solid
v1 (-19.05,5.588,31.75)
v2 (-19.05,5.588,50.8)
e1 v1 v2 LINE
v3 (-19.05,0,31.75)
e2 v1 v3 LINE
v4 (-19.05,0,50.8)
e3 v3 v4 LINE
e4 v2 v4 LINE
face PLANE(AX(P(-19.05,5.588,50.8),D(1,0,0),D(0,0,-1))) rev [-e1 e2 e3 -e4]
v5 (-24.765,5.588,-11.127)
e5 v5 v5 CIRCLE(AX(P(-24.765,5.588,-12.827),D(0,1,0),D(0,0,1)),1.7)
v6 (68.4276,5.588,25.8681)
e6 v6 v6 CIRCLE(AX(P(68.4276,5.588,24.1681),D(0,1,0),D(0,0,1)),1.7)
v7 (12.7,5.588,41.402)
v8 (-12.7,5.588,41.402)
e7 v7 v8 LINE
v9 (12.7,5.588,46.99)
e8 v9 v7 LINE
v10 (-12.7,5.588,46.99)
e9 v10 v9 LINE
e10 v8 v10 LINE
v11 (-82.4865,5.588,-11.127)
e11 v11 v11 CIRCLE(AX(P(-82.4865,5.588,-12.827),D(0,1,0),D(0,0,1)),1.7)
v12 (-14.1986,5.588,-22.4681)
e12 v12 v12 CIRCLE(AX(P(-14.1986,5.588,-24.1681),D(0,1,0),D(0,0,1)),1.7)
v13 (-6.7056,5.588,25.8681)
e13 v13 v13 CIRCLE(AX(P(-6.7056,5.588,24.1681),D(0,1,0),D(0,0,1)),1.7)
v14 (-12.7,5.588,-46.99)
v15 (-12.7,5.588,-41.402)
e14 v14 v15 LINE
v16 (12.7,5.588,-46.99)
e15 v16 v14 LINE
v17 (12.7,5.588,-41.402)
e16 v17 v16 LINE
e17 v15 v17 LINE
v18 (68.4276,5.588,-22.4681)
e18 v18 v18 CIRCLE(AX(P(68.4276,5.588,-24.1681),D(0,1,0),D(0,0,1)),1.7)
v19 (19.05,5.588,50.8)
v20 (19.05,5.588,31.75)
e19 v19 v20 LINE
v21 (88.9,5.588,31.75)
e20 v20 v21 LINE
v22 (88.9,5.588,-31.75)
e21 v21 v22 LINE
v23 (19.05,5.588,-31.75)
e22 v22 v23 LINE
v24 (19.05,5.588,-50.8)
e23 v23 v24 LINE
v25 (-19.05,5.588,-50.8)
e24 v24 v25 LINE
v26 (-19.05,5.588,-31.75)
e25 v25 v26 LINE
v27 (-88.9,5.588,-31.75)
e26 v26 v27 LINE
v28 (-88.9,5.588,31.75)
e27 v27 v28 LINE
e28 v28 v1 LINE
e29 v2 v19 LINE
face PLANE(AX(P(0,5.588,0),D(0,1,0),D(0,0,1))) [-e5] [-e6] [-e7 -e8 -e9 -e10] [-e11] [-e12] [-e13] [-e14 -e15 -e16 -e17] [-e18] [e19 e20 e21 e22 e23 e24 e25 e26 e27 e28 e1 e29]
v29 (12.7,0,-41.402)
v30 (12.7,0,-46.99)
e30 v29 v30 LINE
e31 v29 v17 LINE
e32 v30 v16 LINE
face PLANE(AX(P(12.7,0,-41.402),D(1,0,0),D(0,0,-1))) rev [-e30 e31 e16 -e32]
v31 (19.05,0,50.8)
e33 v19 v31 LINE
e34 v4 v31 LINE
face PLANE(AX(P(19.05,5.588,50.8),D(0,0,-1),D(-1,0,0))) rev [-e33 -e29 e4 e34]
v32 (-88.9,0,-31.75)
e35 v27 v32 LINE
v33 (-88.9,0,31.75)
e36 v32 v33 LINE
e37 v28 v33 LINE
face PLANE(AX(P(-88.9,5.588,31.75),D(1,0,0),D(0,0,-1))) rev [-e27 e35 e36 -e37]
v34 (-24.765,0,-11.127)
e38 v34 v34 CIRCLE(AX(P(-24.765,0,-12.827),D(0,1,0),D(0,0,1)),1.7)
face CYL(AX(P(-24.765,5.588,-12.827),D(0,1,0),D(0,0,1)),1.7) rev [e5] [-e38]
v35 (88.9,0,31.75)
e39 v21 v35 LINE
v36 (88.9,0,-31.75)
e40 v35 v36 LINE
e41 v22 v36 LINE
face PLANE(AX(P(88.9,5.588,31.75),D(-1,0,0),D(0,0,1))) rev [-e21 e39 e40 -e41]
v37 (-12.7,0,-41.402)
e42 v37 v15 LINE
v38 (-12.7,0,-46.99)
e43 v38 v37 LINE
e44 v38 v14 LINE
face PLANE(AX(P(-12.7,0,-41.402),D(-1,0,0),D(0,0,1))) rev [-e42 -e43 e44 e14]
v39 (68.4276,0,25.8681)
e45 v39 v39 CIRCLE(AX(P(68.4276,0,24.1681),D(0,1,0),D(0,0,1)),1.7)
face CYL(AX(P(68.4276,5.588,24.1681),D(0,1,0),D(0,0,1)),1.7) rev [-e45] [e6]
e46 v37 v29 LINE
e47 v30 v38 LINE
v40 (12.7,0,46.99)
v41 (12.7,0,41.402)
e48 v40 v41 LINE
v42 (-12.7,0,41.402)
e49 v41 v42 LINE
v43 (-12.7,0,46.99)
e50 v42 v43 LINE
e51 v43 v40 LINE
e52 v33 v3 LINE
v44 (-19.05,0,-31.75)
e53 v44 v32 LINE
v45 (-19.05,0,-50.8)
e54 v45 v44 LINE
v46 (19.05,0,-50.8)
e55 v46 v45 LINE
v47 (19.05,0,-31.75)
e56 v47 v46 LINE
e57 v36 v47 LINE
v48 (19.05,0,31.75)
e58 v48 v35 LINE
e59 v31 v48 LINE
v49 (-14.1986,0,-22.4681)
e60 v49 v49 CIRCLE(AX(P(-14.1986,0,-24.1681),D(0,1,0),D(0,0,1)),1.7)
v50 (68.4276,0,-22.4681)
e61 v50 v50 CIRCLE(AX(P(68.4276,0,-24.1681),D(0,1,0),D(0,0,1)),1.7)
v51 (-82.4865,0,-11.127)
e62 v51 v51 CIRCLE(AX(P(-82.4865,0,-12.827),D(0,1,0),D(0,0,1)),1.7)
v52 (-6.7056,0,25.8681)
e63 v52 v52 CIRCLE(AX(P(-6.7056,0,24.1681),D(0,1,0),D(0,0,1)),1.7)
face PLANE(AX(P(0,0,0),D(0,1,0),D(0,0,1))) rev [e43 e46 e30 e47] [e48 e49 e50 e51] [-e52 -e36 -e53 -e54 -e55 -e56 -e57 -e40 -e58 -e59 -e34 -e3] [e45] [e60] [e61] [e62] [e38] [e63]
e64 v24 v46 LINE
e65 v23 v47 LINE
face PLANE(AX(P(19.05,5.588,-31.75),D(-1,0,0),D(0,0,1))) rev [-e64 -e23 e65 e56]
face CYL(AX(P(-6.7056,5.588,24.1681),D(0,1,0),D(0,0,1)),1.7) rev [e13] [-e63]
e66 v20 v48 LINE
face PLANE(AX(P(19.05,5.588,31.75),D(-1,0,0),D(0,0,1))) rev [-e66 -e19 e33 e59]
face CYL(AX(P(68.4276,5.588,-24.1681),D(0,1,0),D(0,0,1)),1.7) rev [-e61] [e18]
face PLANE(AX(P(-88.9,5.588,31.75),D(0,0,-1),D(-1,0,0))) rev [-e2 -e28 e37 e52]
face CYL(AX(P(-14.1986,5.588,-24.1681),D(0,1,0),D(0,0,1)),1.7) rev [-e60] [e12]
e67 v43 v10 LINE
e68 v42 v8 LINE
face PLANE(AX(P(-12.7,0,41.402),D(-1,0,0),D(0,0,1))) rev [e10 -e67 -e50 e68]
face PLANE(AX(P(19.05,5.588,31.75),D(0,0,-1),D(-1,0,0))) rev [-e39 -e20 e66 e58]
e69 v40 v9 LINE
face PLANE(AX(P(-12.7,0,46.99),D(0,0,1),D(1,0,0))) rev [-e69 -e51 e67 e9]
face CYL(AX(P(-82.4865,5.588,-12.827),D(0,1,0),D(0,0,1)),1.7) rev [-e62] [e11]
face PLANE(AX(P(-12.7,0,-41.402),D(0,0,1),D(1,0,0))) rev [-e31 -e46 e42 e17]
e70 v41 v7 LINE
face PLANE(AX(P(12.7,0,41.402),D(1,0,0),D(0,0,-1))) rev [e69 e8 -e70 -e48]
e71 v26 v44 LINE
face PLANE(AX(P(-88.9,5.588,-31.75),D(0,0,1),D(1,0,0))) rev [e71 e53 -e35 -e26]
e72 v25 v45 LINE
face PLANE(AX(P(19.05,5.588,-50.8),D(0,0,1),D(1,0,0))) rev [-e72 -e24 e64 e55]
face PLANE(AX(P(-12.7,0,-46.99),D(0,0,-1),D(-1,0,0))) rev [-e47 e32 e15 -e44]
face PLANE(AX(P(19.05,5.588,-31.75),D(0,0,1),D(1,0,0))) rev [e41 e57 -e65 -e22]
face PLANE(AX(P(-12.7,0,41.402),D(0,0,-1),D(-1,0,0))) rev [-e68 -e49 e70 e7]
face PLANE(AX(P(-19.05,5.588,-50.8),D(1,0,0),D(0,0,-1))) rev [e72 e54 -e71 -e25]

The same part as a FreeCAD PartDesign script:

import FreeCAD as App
import Part
import Sketcher
from FreeCAD import Vector
Q = App.Units.Quantity

doc = App.newDocument("Part")
params = doc.addObject("Spreadsheet::Sheet", "Params")
for row, (alias, value) in enumerate([
    ("sketch1_width", "1.5 in"),
    ("sketch1_height", "2.5 in"),
    ("sketch1_width2", "2.75 in"),
    ("pad1_length", "0.22 in"),
    ("sketch2_width", "1 in"),
    ("sketch2_height", "0.22 in"),
    ("hole_diameter", "3.4 mm"),
    ("hole2_diameter", "3.4 mm"),
], start=1):
    params.set(f"A{row}", alias)
    params.set(f"B{row}", "=" + value)
    params.setAlias(f"B{row}", alias)

body = doc.addObject("PartDesign::Body", "Body")

# Sketch on XZ plane
sketch1 = body.newObject("Sketcher::SketchObject", "Sketch")
sketch1.AttachmentSupport = (doc.getObject("XZ_Plane"), [""])
sketch1.MapMode = "FlatFace"
sketch1.addGeometry([
    Part.LineSegment(Vector(19, -32, 0), Vector(19, -51, 0)),  # 0
    Part.LineSegment(Vector(19, -51, 0), Vector(-19, -51, 0)),  # 1
    Part.LineSegment(Vector(-19, -51, 0), Vector(-19, -32, 0)),  # 2
    Part.LineSegment(Vector(-19, -32, 0), Vector(-89, -32, 0)),  # 3
    Part.LineSegment(Vector(-89, -32, 0), Vector(-89, 32, 0)),  # 4
    Part.LineSegment(Vector(-89, 32, 0), Vector(-19, 32, 0)),  # 5
    Part.LineSegment(Vector(-19, 32, 0), Vector(-19, 51, 0)),  # 6
    Part.LineSegment(Vector(-19, 51, 0), Vector(19, 51, 0)),  # 7
    Part.LineSegment(Vector(19, 51, 0), Vector(19, 32, 0)),  # 8
    Part.LineSegment(Vector(19, 32, 0), Vector(89, 32, 0)),  # 9
    Part.LineSegment(Vector(89, 32, 0), Vector(89, -32, 0)),  # 10
    Part.LineSegment(Vector(89, -32, 0), Vector(19, -32, 0)),  # 11
], False)
sketch1.addConstraint([
    Sketcher.Constraint("Coincident", 0, 2, 1, 1),
    Sketcher.Constraint("Coincident", 1, 2, 2, 1),
    Sketcher.Constraint("Coincident", 2, 2, 3, 1),
    Sketcher.Constraint("Coincident", 3, 2, 4, 1),
    Sketcher.Constraint("Coincident", 4, 2, 5, 1),
    Sketcher.Constraint("Coincident", 5, 2, 6, 1),
    Sketcher.Constraint("Coincident", 6, 2, 7, 1),
    Sketcher.Constraint("Coincident", 7, 2, 8, 1),
    Sketcher.Constraint("Coincident", 8, 2, 9, 1),
    Sketcher.Constraint("Coincident", 9, 2, 10, 1),
    Sketcher.Constraint("Coincident", 10, 2, 11, 1),
    Sketcher.Constraint("Coincident", 11, 2, 0, 1),
    Sketcher.Constraint("Vertical", 0),
    Sketcher.Constraint("Horizontal", 1),
    Sketcher.Constraint("Vertical", 2),
    Sketcher.Constraint("Horizontal", 3),
    Sketcher.Constraint("Vertical", 4),
    Sketcher.Constraint("Horizontal", 5),
    Sketcher.Constraint("Vertical", 6),
    Sketcher.Constraint("Horizontal", 7),
    Sketcher.Constraint("Vertical", 8),
    Sketcher.Constraint("Horizontal", 9),
    Sketcher.Constraint("Vertical", 10),
    Sketcher.Constraint("Horizontal", 11),
    Sketcher.Constraint("Symmetric", 0, 2, 6, 2, -1, 1),
    Sketcher.Constraint("Symmetric", 2, 2, 8, 2, -1, 1),
    Sketcher.Constraint("Symmetric", 4, 2, 10, 2, -1, 1),
    Sketcher.Constraint("Symmetric", 5, 2, 8, 2, -2),
    Sketcher.Constraint("DistanceX", 1, 2, 1, 1, Q("1.5 in")),
    Sketcher.Constraint("DistanceY", 4, 1, 4, 2, Q("2.5 in")),
    Sketcher.Constraint("DistanceY", 0, 2, -1, 1, Q("2 in")),
    Sketcher.Constraint("DistanceX", 3, 2, 3, 1, Q("2.75 in")),
])
sketch1.setExpression("Constraints[28]", "Params.sketch1_width")
sketch1.setExpression("Constraints[29]", "Params.sketch1_height")
sketch1.setExpression("Constraints[31]", "Params.sketch1_width2")
pad1 = body.newObject("PartDesign::Pad", "Pad")
pad1.Profile = sketch1
pad1.setExpression("Length", "Params.pad1_length")
pad1.Reversed = True

# Sketch on XZ plane
sketch2 = body.newObject("Sketcher::SketchObject", "Sketch001")
sketch2.AttachmentSupport = (doc.getObject("XZ_Plane"), [""])
sketch2.MapMode = "FlatFace"
sketch2.AttachmentOffset = App.Placement(Vector(0, 0, -0.22 * 25.4), App.Rotation())
sketch2.addGeometry([
    Part.LineSegment(Vector(-13, -47, 0), Vector(-13, -41, 0)),  # 0
    Part.LineSegment(Vector(-13, -41, 0), Vector(13, -41, 0)),  # 1
    Part.LineSegment(Vector(13, -41, 0), Vector(13, -47, 0)),  # 2
    Part.LineSegment(Vector(13, -47, 0), Vector(-13, -47, 0)),  # 3
    Part.LineSegment(Vector(-13, 41, 0), Vector(-13, 47, 0)),  # 4
    Part.LineSegment(Vector(-13, 47, 0), Vector(13, 47, 0)),  # 5
    Part.LineSegment(Vector(13, 47, 0), Vector(13, 41, 0)),  # 6
    Part.LineSegment(Vector(13, 41, 0), Vector(-13, 41, 0)),  # 7
], False)
sketch2.addConstraint([
    Sketcher.Constraint("Coincident", 0, 2, 1, 1),
    Sketcher.Constraint("Coincident", 1, 2, 2, 1),
    Sketcher.Constraint("Coincident", 2, 2, 3, 1),
    Sketcher.Constraint("Coincident", 3, 2, 0, 1),
    Sketcher.Constraint("Coincident", 4, 2, 5, 1),
    Sketcher.Constraint("Coincident", 5, 2, 6, 1),
    Sketcher.Constraint("Coincident", 6, 2, 7, 1),
    Sketcher.Constraint("Coincident", 7, 2, 4, 1),
    Sketcher.Constraint("Vertical", 0),
    Sketcher.Constraint("Horizontal", 1),
    Sketcher.Constraint("Vertical", 2),
    Sketcher.Constraint("Horizontal", 3),
    Sketcher.Constraint("Vertical", 4),
    Sketcher.Constraint("Horizontal", 5),
    Sketcher.Constraint("Vertical", 6),
    Sketcher.Constraint("Horizontal", 7),
    Sketcher.Constraint("Symmetric", 2, 2, 4, 2, -1, 1),
    Sketcher.Constraint("Symmetric", 0, 2, 6, 2, -1, 1),
    Sketcher.Constraint("Vertical", 3, 2, 4, 2),
    Sketcher.Constraint("DistanceX", 1, 1, 1, 2, Q("1 in")),
    Sketcher.Constraint("DistanceY", 0, 1, 0, 2, Q("0.22 in")),
    Sketcher.Constraint("DistanceY", 3, 2, 4, 2, Q("3.7 in")),
])
sketch2.setExpression("Constraints[19]", "Params.sketch2_width")
sketch2.setExpression("Constraints[20]", "Params.sketch2_height")
pocket1 = body.newObject("PartDesign::Pocket", "Pocket")
pocket1.Profile = sketch2
pocket1.Type = "ThroughAll"
pocket1.Reversed = True

# Sketch on XZ plane
sketch3 = body.newObject("Sketcher::SketchObject", "Sketch002")
sketch3.AttachmentSupport = (doc.getObject("XZ_Plane"), [""])
sketch3.MapMode = "FlatFace"
sketch3.AttachmentOffset = App.Placement(Vector(0, 0, -0.22 * 25.4), App.Rotation())
sketch3.addGeometry([
    Part.Circle(Vector(-14.2, -24.2, 0), Vector(0, 0, 1), 1.7),
    Part.Circle(Vector(68.4, -24.2, 0), Vector(0, 0, 1), 1.7),
    Part.Circle(Vector(68.4, 24.2, 0), Vector(0, 0, 1), 1.7),
    Part.Circle(Vector(-6.7, 24.2, 0), Vector(0, 0, 1), 1.7),
], False)
sketch3.addConstraint([
    Sketcher.Constraint("Equal", 0, 1),
    Sketcher.Constraint("Equal", 1, 2),
    Sketcher.Constraint("Equal", 2, 3),
    Sketcher.Constraint("Symmetric", 1, 3, 2, 3, -1),
    Sketcher.Constraint("Horizontal", 0, 3, 1, 3),
    Sketcher.Constraint("Horizontal", 2, 3, 3, 3),
    Sketcher.Constraint("Diameter", 0, Q("3.4 mm")),
    Sketcher.Constraint("DistanceX", 0, 3, -1, 1, Q("0.559 in")),
    Sketcher.Constraint("DistanceX", -1, 1, 1, 3, Q("2.694 in")),
    Sketcher.Constraint("DistanceX", 3, 3, -1, 1, Q("0.264 in")),
    Sketcher.Constraint("DistanceY", 1, 3, 2, 3, Q("1.903 in")),
])
doc.recompute()
hole = body.newObject("PartDesign::Hole", "Hole")
hole.Profile = sketch3
hole.ThreadType = "None"
hole.setExpression("Diameter", "Params.hole_diameter")
hole.DepthType = "ThroughAll"
hole.Reversed = True

# Sketch on XZ plane
sketch4 = body.newObject("Sketcher::SketchObject", "Sketch003")
sketch4.AttachmentSupport = (doc.getObject("XZ_Plane"), [""])
sketch4.MapMode = "FlatFace"
sketch4.AttachmentOffset = App.Placement(Vector(0, 0, -0.22 * 25.4), App.Rotation())
sketch4.addGeometry([
    Part.Circle(Vector(-24.8, -12.8, 0), Vector(0, 0, 1), 1.7),
    Part.Circle(Vector(-82.5, -12.8, 0), Vector(0, 0, 1), 1.7),
], False)
sketch4.addConstraint([
    Sketcher.Constraint("Equal", 0, 1),
    Sketcher.Constraint("Horizontal", 0, 3, 1, 3),
    Sketcher.Constraint("Diameter", 0, Q("3.4 mm")),
    Sketcher.Constraint("DistanceX", 0, 3, -1, 1, Q("0.975 in")),
    Sketcher.Constraint("DistanceY", 0, 3, -1, 1, Q("0.505 in")),
    Sketcher.Constraint("DistanceX", 1, 3, -1, 1, Q("3.2475 in")),
])
doc.recompute()
hole2 = body.newObject("PartDesign::Hole", "Hole001")
hole2.Profile = sketch4
hole2.ThreadType = "None"
hole2.setExpression("Diameter", "Params.hole2_diameter")
hole2.DepthType = "ThroughAll"
hole2.Reversed = True

doc.recompute()
